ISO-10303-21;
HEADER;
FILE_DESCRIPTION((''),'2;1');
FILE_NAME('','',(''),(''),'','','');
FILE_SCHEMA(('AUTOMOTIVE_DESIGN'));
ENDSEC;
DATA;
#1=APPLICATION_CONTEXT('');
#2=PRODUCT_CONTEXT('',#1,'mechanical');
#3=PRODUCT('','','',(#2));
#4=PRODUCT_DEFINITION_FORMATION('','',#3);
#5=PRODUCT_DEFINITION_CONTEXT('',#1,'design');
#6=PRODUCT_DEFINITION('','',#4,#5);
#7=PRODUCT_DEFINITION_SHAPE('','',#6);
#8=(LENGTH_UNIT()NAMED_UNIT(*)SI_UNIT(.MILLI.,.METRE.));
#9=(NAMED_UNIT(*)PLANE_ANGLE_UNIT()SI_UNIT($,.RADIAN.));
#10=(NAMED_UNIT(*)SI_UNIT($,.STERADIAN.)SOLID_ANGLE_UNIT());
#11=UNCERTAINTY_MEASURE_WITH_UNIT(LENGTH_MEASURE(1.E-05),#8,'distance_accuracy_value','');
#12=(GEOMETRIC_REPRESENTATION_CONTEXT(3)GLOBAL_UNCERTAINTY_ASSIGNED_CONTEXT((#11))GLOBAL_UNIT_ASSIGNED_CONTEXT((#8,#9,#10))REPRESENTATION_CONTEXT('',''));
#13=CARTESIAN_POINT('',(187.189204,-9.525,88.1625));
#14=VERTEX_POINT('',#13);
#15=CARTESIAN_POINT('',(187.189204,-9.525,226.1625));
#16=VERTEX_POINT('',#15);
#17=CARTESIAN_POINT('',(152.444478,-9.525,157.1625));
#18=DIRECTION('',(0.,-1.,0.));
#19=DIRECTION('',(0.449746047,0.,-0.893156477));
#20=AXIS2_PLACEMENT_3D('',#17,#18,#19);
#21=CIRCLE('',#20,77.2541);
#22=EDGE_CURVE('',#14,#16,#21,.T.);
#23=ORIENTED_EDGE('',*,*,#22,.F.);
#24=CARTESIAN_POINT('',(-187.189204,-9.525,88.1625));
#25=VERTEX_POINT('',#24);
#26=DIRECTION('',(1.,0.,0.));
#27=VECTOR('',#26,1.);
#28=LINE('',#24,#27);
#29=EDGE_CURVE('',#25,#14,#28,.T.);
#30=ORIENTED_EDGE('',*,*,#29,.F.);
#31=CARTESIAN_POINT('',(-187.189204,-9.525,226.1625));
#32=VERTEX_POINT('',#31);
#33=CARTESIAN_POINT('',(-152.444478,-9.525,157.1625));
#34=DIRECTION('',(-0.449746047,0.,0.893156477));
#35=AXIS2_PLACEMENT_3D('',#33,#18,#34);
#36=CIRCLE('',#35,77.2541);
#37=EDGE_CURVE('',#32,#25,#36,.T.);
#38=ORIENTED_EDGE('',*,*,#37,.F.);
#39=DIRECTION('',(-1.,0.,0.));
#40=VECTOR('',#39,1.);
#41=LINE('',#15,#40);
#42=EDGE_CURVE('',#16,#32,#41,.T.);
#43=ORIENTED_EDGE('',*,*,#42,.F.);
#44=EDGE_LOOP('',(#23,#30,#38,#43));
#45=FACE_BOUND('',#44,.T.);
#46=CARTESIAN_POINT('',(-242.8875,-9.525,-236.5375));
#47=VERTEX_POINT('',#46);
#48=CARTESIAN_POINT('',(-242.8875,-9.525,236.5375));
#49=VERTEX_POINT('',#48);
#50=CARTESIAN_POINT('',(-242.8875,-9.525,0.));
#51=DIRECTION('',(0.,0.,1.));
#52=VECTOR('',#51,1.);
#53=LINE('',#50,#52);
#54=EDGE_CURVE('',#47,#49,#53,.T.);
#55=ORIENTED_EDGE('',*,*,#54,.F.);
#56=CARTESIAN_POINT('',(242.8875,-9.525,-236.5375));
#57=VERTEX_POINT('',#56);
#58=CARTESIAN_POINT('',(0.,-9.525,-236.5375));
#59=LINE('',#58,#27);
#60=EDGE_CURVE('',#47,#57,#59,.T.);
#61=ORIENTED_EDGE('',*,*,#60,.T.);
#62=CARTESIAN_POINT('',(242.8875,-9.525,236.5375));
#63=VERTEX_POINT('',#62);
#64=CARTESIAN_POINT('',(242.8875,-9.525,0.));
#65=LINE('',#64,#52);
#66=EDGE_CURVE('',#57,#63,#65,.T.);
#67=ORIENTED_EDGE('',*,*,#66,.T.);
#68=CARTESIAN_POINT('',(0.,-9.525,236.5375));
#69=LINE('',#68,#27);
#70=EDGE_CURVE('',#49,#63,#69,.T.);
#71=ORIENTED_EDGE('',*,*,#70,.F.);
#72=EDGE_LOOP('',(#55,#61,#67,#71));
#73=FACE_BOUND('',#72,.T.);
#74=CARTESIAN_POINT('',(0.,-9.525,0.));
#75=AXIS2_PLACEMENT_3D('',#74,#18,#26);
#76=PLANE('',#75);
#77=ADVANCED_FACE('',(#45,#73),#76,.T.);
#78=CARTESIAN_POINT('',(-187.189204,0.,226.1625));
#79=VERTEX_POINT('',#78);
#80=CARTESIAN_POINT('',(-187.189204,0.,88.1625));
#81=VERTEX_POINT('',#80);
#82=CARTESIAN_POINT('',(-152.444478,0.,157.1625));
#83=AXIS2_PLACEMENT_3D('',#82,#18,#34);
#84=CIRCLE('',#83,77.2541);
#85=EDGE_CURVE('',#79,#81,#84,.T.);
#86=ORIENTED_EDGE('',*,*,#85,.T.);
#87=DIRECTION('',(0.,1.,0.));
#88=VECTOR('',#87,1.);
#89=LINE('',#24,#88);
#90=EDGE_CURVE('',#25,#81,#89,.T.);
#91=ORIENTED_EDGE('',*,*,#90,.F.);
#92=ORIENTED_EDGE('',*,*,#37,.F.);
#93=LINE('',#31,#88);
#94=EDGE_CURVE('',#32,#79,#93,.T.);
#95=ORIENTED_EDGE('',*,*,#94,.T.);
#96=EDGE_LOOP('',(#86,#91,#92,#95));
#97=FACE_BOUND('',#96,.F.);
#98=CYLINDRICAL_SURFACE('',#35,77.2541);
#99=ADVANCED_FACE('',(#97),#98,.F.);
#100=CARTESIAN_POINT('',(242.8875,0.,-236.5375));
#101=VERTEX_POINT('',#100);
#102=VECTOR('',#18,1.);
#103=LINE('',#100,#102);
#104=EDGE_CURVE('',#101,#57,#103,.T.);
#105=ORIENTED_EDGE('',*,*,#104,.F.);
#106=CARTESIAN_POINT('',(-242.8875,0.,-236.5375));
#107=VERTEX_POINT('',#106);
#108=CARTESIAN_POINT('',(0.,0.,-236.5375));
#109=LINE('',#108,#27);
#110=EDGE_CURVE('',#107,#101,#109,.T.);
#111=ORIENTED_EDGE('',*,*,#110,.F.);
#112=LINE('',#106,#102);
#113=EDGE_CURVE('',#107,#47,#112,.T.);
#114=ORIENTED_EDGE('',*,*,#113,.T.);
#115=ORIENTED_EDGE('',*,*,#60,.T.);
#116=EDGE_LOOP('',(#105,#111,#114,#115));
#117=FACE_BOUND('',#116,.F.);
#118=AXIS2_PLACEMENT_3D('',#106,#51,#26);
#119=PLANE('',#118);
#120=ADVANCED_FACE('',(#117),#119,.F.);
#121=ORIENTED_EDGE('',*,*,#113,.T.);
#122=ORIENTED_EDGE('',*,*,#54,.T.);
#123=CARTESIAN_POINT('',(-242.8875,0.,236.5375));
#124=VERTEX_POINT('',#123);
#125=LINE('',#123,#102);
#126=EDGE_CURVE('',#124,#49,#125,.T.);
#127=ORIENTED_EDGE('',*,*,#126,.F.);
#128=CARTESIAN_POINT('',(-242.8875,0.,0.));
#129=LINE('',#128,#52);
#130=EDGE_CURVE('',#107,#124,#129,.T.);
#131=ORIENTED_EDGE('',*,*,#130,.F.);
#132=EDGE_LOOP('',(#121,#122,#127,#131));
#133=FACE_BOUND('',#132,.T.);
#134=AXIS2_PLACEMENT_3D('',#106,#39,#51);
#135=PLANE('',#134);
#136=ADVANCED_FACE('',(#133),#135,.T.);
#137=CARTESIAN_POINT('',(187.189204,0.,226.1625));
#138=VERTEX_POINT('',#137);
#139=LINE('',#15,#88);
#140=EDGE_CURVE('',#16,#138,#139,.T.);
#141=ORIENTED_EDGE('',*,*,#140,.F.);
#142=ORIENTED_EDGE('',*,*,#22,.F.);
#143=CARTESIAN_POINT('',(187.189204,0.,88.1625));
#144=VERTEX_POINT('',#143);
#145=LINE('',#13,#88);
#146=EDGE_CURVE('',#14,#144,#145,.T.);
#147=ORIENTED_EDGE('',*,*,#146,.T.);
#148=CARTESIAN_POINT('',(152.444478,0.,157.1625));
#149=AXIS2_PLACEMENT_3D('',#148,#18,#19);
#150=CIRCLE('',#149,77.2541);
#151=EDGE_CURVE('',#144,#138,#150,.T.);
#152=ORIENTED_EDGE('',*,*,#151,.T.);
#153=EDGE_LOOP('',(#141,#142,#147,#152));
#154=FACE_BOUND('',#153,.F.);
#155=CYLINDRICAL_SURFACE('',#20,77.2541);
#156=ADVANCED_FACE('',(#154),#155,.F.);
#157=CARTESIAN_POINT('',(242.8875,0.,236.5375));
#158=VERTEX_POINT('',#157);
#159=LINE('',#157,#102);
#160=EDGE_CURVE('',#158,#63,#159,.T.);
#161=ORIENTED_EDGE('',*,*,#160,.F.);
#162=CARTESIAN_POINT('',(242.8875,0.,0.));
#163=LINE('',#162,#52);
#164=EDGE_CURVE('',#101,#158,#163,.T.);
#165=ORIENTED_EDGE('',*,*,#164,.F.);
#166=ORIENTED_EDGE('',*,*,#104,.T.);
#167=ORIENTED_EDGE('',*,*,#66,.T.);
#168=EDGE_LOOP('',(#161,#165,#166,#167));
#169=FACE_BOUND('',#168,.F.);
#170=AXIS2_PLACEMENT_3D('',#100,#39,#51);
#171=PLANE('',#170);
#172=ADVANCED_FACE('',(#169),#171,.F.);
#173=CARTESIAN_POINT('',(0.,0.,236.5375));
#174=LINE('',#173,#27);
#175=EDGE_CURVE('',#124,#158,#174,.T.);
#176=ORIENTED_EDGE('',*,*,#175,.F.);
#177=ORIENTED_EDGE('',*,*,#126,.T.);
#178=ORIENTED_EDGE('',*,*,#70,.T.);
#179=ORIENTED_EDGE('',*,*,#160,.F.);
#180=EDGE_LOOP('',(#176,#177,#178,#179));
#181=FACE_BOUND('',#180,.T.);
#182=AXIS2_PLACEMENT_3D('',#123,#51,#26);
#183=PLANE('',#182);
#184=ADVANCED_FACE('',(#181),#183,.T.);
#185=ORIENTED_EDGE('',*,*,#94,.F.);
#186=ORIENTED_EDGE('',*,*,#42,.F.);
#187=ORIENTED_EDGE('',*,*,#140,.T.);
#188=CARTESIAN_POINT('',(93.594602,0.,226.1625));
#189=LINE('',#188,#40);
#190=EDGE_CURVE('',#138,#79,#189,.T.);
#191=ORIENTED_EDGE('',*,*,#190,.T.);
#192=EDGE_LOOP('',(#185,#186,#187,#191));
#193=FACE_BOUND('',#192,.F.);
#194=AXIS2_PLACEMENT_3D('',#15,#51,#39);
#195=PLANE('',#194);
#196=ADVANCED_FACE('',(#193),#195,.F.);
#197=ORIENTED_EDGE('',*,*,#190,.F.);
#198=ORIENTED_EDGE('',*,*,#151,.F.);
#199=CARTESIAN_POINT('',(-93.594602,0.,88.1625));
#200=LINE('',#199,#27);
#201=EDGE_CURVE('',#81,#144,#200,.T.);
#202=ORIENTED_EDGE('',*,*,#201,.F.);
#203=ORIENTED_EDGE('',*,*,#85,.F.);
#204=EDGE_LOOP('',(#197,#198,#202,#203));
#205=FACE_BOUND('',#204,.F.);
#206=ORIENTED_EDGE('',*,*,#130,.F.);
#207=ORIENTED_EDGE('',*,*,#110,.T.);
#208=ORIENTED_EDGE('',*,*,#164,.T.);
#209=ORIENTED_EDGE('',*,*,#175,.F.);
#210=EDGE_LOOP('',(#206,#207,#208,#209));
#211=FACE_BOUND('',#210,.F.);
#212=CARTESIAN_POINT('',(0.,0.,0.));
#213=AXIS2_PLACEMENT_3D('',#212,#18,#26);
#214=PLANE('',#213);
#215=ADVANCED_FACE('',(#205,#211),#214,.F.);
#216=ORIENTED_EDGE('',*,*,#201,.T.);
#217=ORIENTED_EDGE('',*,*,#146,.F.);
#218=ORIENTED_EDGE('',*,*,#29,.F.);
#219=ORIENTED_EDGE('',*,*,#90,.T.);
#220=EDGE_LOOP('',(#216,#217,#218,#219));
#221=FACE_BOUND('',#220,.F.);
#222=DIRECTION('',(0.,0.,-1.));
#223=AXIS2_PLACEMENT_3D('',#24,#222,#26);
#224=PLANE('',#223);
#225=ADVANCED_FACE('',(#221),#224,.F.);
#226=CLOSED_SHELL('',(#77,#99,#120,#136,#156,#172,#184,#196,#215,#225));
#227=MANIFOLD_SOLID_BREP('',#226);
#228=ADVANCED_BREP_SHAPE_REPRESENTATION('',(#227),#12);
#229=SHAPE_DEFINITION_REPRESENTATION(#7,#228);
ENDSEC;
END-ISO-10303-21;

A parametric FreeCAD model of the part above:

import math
import FreeCAD as App
import Part
import Sketcher

V = App.Vector
Q = App.Units.Quantity

doc = App.newDocument("Part")
params = doc.addObject("Spreadsheet::Sheet", "Params")
for row, (alias, value) in enumerate([
    ("sketch1_width", "19.125 in"),
    ("sketch1_height", "18.625 in"),
    ("pad1_length", "0.375 in"),
    ("sketch2_diameter", "4.33 in"),
    ("hole_diameter", "4.33 in"),
    ("pocket1_length", "1 in"),
], start=1):
    params.set(f"A{row}", alias)
    params.set(f"B{row}", "=" + value)
    params.setAlias(f"B{row}", alias)

body = doc.addObject("PartDesign::Body", "Body")

sketch1 = body.newObject("Sketcher::SketchObject", "Sketch")
sketch1.AttachmentSupport = (doc.getObject("XZ_Plane"), [""])
sketch1.MapMode = "FlatFace"
sketch1.addGeometry(Part.LineSegment(V(-242.8875, 236.5375, 0), V(-242.8875, -236.5375, 0)), False)
sketch1.addGeometry(Part.LineSegment(V(-242.8875, -236.5375, 0), V(242.8875, -236.5375, 0)), False)
sketch1.addGeometry(Part.LineSegment(V(242.8875, -236.5375, 0), V(242.8875, 236.5375, 0)), False)
sketch1.addGeometry(Part.LineSegment(V(242.8875, 236.5375, 0), V(-242.8875, 236.5375, 0)), False)
sketch1.addConstraint(Sketcher.Constraint("Coincident", 0, 2, 1, 1))
sketch1.addConstraint(Sketcher.Constraint("Coincident", 1, 2, 2, 1))
sketch1.addConstraint(Sketcher.Constraint("Coincident", 2, 2, 3, 1))
sketch1.addConstraint(Sketcher.Constraint("Coincident", 3, 2, 0, 1))
sketch1.addConstraint(Sketcher.Constraint("Vertical", 0))
sketch1.addConstraint(Sketcher.Constraint("Horizontal", 1))
sketch1.addConstraint(Sketcher.Constraint("Vertical", 2))
sketch1.addConstraint(Sketcher.Constraint("Horizontal", 3))
sketch1.addConstraint(Sketcher.Constraint("Symmetric", 0, 2, 2, 2, -1, 1))
sketch1.addConstraint(Sketcher.Constraint("DistanceX", 1, 1, 1, 2, Q("19.125 in")))
sketch1.addConstraint(Sketcher.Constraint("DistanceY", 0, 2, 0, 1, Q("18.625 in")))
sketch1.setExpression("Constraints[9]", "Params.sketch1_width")
sketch1.setExpression("Constraints[10]", "Params.sketch1_height")
pad1 = body.newObject("PartDesign::Pad", "Pad")
pad1.Profile = sketch1
pad1.setExpression("Length", "Params.pad1_length")

sketch2 = body.newObject("Sketcher::SketchObject", "Sketch001")
sketch2.AttachmentSupport = (doc.getObject("XZ_Plane"), [""])
sketch2.MapMode = "FlatFace"
sketch2.AttachmentOffset = App.Placement(V(0, 0, 0.375 * 25.4), App.Rotation())
sketch2.addGeometry(Part.Circle(V(0, 157.1625, 0), V(0, 0, 1), 54.991), False)
sketch2.addConstraint(Sketcher.Constraint("PointOnObject", 0, 3, -2))
sketch2.addConstraint(Sketcher.Constraint("Diameter", 0, Q("4.33 in")))
sketch2.addConstraint(Sketcher.Constraint("DistanceY", -1, 1, 0, 3, Q("6.1875 in")))
sketch2.setExpression("Constraints[1]", "Params.sketch2_diameter")
doc.recompute()
hole = body.newObject("PartDesign::Hole", "Hole")
hole.Profile = sketch2
hole.ThreadType = "None"
hole.setExpression("Diameter", "Params.hole_diameter")
hole.DepthType = "ThroughAll"

sketch3 = body.newObject("Sketcher::SketchObject", "Sketch002")
sketch3.AttachmentSupport = (doc.getObject("XZ_Plane"), [""])
sketch3.MapMode = "FlatFace"
sketch3.AttachmentOffset = App.Placement(V(0, 0, 0.375 * 25.4), App.Rotation())
sketch3.addGeometry(Part.ArcOfCircle(Part.Circle(V(-152.444478, 157.1625, 0), V(0, 0, 1), 77.2541), math.radians(116.727392), math.radians(243.272608)), False)
sketch3.addGeometry(Part.LineSegment(V(-187.189204, 88.1625, 0), V(187.189204, 88.1625, 0)), False)
sketch3.addGeometry(Part.ArcOfCircle(Part.Circle(V(152.444478, 157.1625, 0), V(0, 0, 1), 77.2541), math.radians(-63.272608), math.radians(63.272608)), False)
sketch3.addGeometry(Part.LineSegment(V(187.189204, 226.1625, 0), V(-187.189204, 226.1625, 0)), False)
sketch3.addConstraint(Sketcher.Constraint("Coincident", 0, 2, 1, 1))
sketch3.addConstraint(Sketcher.Constraint("Coincident", 1, 2, 2, 1))
sketch3.addConstraint(Sketcher.Constraint("Coincident", 2, 2, 3, 1))
sketch3.addConstraint(Sketcher.Constraint("Coincident", 3, 2, 0, 1))
sketch3.addConstraint(Sketcher.Constraint("Horizontal", 1))
sketch3.addConstraint(Sketcher.Constraint("Horizontal", 3))
sketch3.addConstraint(Sketcher.Constraint("Equal", 0, 2))
sketch3.addConstraint(Sketcher.Constraint("Symmetric", 0, 3, 2, 3, -2))
sketch3.addConstraint(Sketcher.Constraint("Vertical", 1, 2, 2, 2))
sketch3.addConstraint(Sketcher.Constraint("Radius", 0, Q("3.0415 in")))
sketch3.addConstraint(Sketcher.Constraint("DistanceY", -1, 1, 0, 3, Q("6.1875 in")))
sketch3.addConstraint(Sketcher.Constraint("DistanceX", 1, 1, 1, 2, Q("374.378408 mm")))
sketch3.addConstraint(Sketcher.Constraint("DistanceY", -1, 1, 0, 2, Q("88.1625 mm")))
pocket1 = body.newObject("PartDesign::Pocket", "Pocket")
pocket1.Profile = sketch3
pocket1.setExpression("Length", "Params.pocket1_length")

doc.recompute()
